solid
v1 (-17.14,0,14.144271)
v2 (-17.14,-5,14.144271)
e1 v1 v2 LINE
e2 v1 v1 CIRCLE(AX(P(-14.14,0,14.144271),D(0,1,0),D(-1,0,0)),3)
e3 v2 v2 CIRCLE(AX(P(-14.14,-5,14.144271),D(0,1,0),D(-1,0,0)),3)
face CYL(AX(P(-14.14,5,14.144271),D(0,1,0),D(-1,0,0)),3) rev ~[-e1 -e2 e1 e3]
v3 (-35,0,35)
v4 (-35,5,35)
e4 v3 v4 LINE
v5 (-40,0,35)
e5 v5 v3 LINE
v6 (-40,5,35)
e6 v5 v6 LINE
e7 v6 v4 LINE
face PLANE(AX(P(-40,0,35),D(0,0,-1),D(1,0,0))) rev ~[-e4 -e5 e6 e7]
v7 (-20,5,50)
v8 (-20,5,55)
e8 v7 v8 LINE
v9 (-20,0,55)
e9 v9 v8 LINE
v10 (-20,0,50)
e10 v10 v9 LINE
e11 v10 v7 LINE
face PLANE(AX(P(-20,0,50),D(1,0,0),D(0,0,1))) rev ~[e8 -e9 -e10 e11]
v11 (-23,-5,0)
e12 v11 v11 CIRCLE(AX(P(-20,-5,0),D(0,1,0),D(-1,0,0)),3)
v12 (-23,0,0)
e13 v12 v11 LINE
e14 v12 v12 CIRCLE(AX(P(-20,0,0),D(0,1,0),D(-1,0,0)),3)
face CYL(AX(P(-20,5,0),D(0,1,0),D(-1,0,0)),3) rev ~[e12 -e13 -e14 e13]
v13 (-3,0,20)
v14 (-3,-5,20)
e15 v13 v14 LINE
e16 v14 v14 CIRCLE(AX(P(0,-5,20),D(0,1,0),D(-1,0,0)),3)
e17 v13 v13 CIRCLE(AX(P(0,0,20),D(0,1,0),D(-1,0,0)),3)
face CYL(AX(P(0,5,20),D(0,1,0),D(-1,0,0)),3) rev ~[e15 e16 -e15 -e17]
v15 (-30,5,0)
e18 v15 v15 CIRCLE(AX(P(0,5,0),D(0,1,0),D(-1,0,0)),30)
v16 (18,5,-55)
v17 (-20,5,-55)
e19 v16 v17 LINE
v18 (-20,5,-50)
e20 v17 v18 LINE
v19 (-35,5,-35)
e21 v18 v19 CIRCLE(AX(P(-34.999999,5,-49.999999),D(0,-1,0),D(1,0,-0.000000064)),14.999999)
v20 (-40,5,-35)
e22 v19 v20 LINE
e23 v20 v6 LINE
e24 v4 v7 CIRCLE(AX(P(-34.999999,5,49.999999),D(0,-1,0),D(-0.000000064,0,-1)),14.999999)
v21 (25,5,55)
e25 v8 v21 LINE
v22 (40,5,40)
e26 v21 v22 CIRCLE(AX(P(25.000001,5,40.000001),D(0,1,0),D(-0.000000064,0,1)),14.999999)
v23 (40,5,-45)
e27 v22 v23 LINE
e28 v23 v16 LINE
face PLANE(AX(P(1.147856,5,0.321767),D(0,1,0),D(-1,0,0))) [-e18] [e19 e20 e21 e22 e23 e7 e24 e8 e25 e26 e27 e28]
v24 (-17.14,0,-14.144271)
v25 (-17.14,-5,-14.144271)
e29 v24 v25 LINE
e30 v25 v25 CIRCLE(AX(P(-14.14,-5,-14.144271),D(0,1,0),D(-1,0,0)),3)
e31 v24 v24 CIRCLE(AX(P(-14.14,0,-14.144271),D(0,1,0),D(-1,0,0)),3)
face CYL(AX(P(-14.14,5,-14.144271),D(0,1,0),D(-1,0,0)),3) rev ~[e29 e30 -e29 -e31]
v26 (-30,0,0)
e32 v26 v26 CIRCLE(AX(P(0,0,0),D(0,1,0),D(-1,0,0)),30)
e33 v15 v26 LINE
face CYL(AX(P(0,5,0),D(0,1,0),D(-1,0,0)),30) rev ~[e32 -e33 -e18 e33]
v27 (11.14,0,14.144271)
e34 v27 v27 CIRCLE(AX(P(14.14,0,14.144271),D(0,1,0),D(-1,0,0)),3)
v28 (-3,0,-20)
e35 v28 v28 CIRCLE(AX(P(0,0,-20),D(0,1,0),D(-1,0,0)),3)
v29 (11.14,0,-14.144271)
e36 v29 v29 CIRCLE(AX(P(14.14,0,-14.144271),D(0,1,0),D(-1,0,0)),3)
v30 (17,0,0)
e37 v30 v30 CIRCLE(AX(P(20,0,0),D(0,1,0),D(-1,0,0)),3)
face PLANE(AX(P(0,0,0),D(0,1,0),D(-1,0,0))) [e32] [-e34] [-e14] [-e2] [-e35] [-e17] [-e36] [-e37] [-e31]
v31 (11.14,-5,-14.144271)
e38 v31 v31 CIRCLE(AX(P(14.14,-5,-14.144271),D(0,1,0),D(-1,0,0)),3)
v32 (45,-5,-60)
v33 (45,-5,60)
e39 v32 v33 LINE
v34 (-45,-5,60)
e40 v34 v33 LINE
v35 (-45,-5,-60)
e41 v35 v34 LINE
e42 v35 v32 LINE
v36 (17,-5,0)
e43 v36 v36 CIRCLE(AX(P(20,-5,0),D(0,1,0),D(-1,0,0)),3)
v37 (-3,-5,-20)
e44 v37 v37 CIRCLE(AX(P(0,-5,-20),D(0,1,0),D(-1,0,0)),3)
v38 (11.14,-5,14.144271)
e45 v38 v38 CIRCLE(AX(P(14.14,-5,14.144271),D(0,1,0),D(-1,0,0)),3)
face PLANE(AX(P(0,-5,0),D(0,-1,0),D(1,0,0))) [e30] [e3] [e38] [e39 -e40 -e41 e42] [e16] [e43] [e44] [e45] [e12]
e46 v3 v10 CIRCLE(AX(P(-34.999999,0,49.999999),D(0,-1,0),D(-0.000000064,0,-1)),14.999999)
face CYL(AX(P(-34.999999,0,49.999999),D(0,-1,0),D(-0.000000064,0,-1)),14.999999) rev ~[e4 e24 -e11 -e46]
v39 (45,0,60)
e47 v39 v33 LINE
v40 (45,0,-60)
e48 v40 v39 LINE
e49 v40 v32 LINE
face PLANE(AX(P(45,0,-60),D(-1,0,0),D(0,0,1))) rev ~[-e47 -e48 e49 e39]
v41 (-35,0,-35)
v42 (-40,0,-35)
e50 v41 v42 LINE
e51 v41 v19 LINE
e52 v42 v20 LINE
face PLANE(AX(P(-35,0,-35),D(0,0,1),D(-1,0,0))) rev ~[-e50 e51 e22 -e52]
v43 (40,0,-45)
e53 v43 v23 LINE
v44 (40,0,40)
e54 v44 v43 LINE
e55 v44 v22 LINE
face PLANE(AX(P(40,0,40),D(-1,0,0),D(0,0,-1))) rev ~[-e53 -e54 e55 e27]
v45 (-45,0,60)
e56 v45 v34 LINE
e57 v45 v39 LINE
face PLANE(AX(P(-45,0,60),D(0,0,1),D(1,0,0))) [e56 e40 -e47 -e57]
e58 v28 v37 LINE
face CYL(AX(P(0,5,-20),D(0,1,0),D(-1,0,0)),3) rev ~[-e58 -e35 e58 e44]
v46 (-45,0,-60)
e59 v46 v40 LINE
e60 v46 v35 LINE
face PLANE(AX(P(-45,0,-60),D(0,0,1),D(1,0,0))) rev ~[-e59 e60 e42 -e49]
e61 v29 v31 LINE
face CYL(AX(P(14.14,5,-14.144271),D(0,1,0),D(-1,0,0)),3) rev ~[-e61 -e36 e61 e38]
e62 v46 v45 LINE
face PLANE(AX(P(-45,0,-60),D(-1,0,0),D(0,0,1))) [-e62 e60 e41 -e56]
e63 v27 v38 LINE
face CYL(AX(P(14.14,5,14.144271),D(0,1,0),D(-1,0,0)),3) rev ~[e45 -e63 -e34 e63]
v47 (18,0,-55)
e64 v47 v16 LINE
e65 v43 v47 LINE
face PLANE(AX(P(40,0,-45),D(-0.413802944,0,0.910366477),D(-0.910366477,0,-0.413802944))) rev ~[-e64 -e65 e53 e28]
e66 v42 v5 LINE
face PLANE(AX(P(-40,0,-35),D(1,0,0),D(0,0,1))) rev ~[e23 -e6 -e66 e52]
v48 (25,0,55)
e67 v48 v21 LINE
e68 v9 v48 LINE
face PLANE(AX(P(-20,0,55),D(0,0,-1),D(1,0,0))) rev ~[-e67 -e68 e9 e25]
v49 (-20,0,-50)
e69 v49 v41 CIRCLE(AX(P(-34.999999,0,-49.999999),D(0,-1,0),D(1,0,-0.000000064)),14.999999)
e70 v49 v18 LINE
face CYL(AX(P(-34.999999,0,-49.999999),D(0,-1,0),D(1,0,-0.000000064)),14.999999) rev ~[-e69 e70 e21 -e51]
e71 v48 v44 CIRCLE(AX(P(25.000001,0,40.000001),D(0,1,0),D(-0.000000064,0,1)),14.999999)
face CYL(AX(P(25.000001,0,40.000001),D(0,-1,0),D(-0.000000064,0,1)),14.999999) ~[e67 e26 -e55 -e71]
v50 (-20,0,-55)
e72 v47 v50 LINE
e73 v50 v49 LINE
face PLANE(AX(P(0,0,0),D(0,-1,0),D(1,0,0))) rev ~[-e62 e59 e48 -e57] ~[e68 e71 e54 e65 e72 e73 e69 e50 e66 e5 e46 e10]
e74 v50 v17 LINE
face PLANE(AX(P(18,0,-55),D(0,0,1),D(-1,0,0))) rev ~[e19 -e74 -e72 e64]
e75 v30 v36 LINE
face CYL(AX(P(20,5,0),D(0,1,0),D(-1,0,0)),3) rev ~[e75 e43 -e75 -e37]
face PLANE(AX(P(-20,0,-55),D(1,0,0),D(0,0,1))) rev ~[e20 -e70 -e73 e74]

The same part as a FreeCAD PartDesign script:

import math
import FreeCAD as App
import Part
import Sketcher

V = App.Vector


def add_polygon(sketch, points):
    """Adds a closed chain of lines whose ends are joined by coincident constraints."""
    first, n = sketch.GeometryCount, len(points)
    for a, b in zip(points, points[1:] + points[:1]):
        sketch.addGeometry(Part.LineSegment(App.Vector(*a, 0), App.Vector(*b, 0)), False)
    for i in range(n):
        sketch.addConstraint(Sketcher.Constraint("Coincident", first + i, 2, first + (i + 1) % n, 1))

doc = App.newDocument("Part")
params = doc.addObject("Spreadsheet::Sheet", "Params")
for row, (alias, value) in enumerate([
    ("sketch1_width", "90 mm"),
    ("sketch1_height", "120 mm"),
    ("pad1_length", "5 mm"),
    ("sketch2_radius", "14.999999 mm"),
    ("sketch2_width", "38 mm"),
    ("sketch2_width2", "5 mm"),
    ("sketch2_width3", "45 mm"),
    ("sketch2_height", "70 mm"),
    ("pad2_length", "5 mm"),
    ("sketch3_diameter", "60 mm"),
    ("sketch3_diameter2", "6 mm"),
    ("pocket1_length", "5 mm"),
    ("sketch4_diameter", "6 mm"),
    ("pocket2_length", "25 mm"),
], start=1):
    params.set(f"A{row}", alias)
    params.set(f"B{row}", "=" + value)
    params.setAlias(f"B{row}", alias)

body = doc.addObject("PartDesign::Body", "Body")

# Sketch on XZ plane
sketch1 = doc.addObject("Sketcher::SketchObject", "Sketch")
body.addObject(sketch1)
sketch1.AttachmentSupport = (doc.XZ_Plane, [""])
sketch1.MapMode = "FlatFace"
add_polygon(sketch1, [(-45, 60), (-45, -60), (45, -60), (45, 60)])  # lines 0-3
sketch1.addConstraint([
    Sketcher.Constraint("Vertical", 0),
    Sketcher.Constraint("Horizontal", 1),
    Sketcher.Constraint("Vertical", 2),
    Sketcher.Constraint("Horizontal", 3),
    Sketcher.Constraint("Symmetric", 0, 2, 2, 2, -1, 1),
    Sketcher.Constraint("DistanceX", 1, 1, 1, 2, 90.0),
    Sketcher.Constraint("DistanceY", 0, 2, 0, 1, 120.0),
])
sketch1.setExpression("Constraints[9]", "Params.sketch1_width")
sketch1.setExpression("Constraints[10]", "Params.sketch1_height")
pad1 = doc.addObject("PartDesign::Pad", "Pad")
body.addObject(pad1)
pad1.Profile = sketch1
pad1.setExpression("Length", "Params.pad1_length")

# Sketch on XZ plane
sketch2 = doc.addObject("Sketcher::SketchObject", "Sketch001")
body.addObject(sketch2)
sketch2.AttachmentSupport = (doc.XZ_Plane, [""])
sketch2.MapMode = "FlatFace"
sketch2.addGeometry([
    Part.LineSegment(V(40, -45, 0), V(18, -55, 0)),  # 0
    Part.LineSegment(V(18, -55, 0), V(-20, -55, 0)),  # 1
    Part.LineSegment(V(-20, -55, 0), V(-20, -50, 0)),  # 2
    Part.ArcOfCircle(Part.Circle(V(-35, -50, 0), V(0, 0, 1), 15), math.radians(0), math.radians(90)),  # 3
    Part.LineSegment(V(-35, -35, 0), V(-40, -35, 0)),  # 4
    Part.LineSegment(V(-40, -35, 0), V(-40, 35, 0)),  # 5
    Part.LineSegment(V(-40, 35, 0), V(-35, 35, 0)),  # 6
    Part.ArcOfCircle(Part.Circle(V(-35, 50, 0), V(0, 0, 1), 15), math.radians(-90), math.radians(0)),  # 7
    Part.LineSegment(V(-20, 50, 0), V(-20, 55, 0)),  # 8
    Part.LineSegment(V(-20, 55, 0), V(25, 55, 0)),  # 9
    Part.ArcOfCircle(Part.Circle(V(25, 40, 0), V(0, 0, 1), 15), math.radians(0), math.radians(90)),  # 10
    Part.LineSegment(V(40, 40, 0), V(40, -45, 0)),  # 11
], False)
sketch2.addConstraint([
    Sketcher.Constraint("Coincident", 0, 2, 1, 1),
    Sketcher.Constraint("Coincident", 1, 2, 2, 1),
    Sketcher.Constraint("Tangent", 2, 2, 3, 1),
    Sketcher.Constraint("Tangent", 3, 2, 4, 1),
    Sketcher.Constraint("Coincident", 4, 2, 5, 1),
    Sketcher.Constraint("Coincident", 5, 2, 6, 1),
    Sketcher.Constraint("Tangent", 6, 2, 7, 1),
    Sketcher.Constraint("Tangent", 7, 2, 8, 1),
    Sketcher.Constraint("Coincident", 8, 2, 9, 1),
    Sketcher.Constraint("Tangent", 9, 2, 10, 2),
    Sketcher.Constraint("Tangent", 10, 1, 11, 1),
    Sketcher.Constraint("Coincident", 11, 2, 0, 1),
    Sketcher.Constraint("Horizontal", 1),
    Sketcher.Constraint("Vertical", 2),
    Sketcher.Constraint("Horizontal", 4),
    Sketcher.Constraint("Vertical", 5),
    Sketcher.Constraint("Horizontal", 6),
    Sketcher.Constraint("Vertical", 8),
    Sketcher.Constraint("Horizontal", 9),
    Sketcher.Constraint("Vertical", 11),
    Sketcher.Constraint("Equal", 3, 7),
    Sketcher.Constraint("Equal", 7, 10),
    Sketcher.Constraint("Symmetric", 3, 3, 7, 3, -1),
    Sketcher.Constraint("Equal", 6, 2),
    Sketcher.Constraint("Equal", 2, 8),
    Sketcher.Constraint("Radius", 3, 14.999999),
    Sketcher.Constraint("DistanceX", 1, 2, 1, 1, 38.0),
    Sketcher.Constraint("DistanceX", 4, 2, 4, 1, 5.0),
    Sketcher.Constraint("DistanceX", 9, 1, 9, 2, 45.0),
    Sketcher.Constraint("DistanceY", 5, 1, 5, 2, 70.0),
    Sketcher.Constraint("DistanceY", 11, 2, 11, 1, 85.0),
    Sketcher.Constraint("DistanceX", 3, 3, -1, 1, 34.999999),
])
sketch2.setExpression("Constraints[25]", "Params.sketch2_radius")
sketch2.setExpression("Constraints[26]", "Params.sketch2_width")
sketch2.setExpression("Constraints[27]", "Params.sketch2_width2")
sketch2.setExpression("Constraints[28]", "Params.sketch2_width3")
sketch2.setExpression("Constraints[29]", "Params.sketch2_height")
pad2 = doc.addObject("PartDesign::Pad", "Pad001")
body.addObject(pad2)
pad2.Profile = sketch2
pad2.setExpression("Length", "Params.pad2_length")
pad2.Reversed = True

# Sketch on XZ plane
sketch3 = doc.addObject("Sketcher::SketchObject", "Sketch002")
body.addObject(sketch3)
sketch3.AttachmentSupport = (doc.XZ_Plane, [""])
sketch3.MapMode = "FlatFace"
sketch3.AttachmentOffset = App.Placement(V(0, 0, -5), App.Rotation())
sketch3.addGeometry([
    Part.Circle(V(0, 0, 0), V(0, 0, 1), 30),  # 0
    Part.Circle(V(14.1, -14.1, 0), V(0, 0, 1), 3),  # 1
    Part.Circle(V(0, -20, 0), V(0, 0, 1), 3),  # 2
    Part.Circle(V(-14.1, -14.1, 0), V(0, 0, 1), 3),  # 3
    Part.Circle(V(20, 0, 0), V(0, 0, 1), 3),  # 4
    Part.Circle(V(14.1, 14.1, 0), V(0, 0, 1), 3),  # 5
    Part.Circle(V(-20, 0, 0), V(0, 0, 1), 3),  # 6
    Part.Circle(V(0, 20, 0), V(0, 0, 1), 3),  # 7
    Part.Circle(V(-14.1, 14.1, 0), V(0, 0, 1), 3),  # 8
], False)
sketch3.addConstraint([
    Sketcher.Constraint("Coincident", 0, 3, -1, 1),
    Sketcher.Constraint("Equal", 1, 2),
    Sketcher.Constraint("Equal", 2, 3),
    Sketcher.Constraint("Equal", 3, 4),
    Sketcher.Constraint("Equal", 4, 5),
    Sketcher.Constraint("Equal", 5, 6),
    Sketcher.Constraint("Equal", 6, 7),
    Sketcher.Constraint("Equal", 7, 8),
    Sketcher.Constraint("Symmetric", 3, 3, 5, 3, -1, 1),
    Sketcher.Constraint("Symmetric", 4, 3, 6, 3, -1, 1),
    Sketcher.Constraint("Symmetric", 2, 3, 7, 3, -1, 1),
    Sketcher.Constraint("Symmetric", 1, 3, 8, 3, -1, 1),
    Sketcher.Constraint("Symmetric", 1, 3, 3, 3, -2),
    Sketcher.Constraint("PointOnObject", 2, 3, -2),
    Sketcher.Constraint("PointOnObject", 4, 3, -1),
    Sketcher.Constraint("Diameter", 0, 60.0),
    Sketcher.Constraint("Diameter", 1, 6.0),
    Sketcher.Constraint("DistanceY", 2, 3, -1, 1, 20.0),
    Sketcher.Constraint("DistanceX", -1, 1, 4, 3, 20.0),
    Sketcher.Constraint("DistanceX", -1, 1, 1, 3, 14.14),
    Sketcher.Constraint("DistanceY", 1, 3, -1, 1, 14.144271),
])
sketch3.setExpression("Constraints[15]", "Params.sketch3_diameter")
sketch3.setExpression("Constraints[16]", "Params.sketch3_diameter2")
pocket1 = doc.addObject("PartDesign::Pocket", "Pocket")
body.addObject(pocket1)
pocket1.Profile = sketch3
pocket1.setExpression("Length", "Params.pocket1_length")
pocket1.Reversed = True

# Sketch on XZ plane
sketch4 = doc.addObject("Sketcher::SketchObject", "Sketch003")
body.addObject(sketch4)
sketch4.AttachmentSupport = (doc.XZ_Plane, [""])
sketch4.MapMode = "FlatFace"
sketch4.AttachmentOffset = App.Placement(V(0, 0, -5), App.Rotation())
sketch4.addGeometry([
    Part.Circle(V(14.1, -14.1, 0), V(0, 0, 1), 3),  # 0
    Part.Circle(V(20, 0, 0), V(0, 0, 1), 3),  # 1
    Part.Circle(V(14.1, 14.1, 0), V(0, 0, 1), 3),  # 2
    Part.Circle(V(0, 20, 0), V(0, 0, 1), 3),  # 3
    Part.Circle(V(-14.1, 14.1, 0), V(0, 0, 1), 3),  # 4
    Part.Circle(V(-20, 0, 0), V(0, 0, 1), 3),  # 5
    Part.Circle(V(-14.1, -14.1, 0), V(0, 0, 1), 3),  # 6
    Part.Circle(V(0, -20, 0), V(0, 0, 1), 3),  # 7
], False)
sketch4.addConstraint([
    Sketcher.Constraint("Equal", 0, 1),
    Sketcher.Constraint("Equal", 1, 2),
    Sketcher.Constraint("Equal", 2, 3),
    Sketcher.Constraint("Equal", 3, 4),
    Sketcher.Constraint("Equal", 4, 5),
    Sketcher.Constraint("Equal", 5, 6),
    Sketcher.Constraint("Equal", 6, 7),
    Sketcher.Constraint("Symmetric", 0, 3, 4, 3, -1, 1),
    Sketcher.Constraint("Symmetric", 1, 3, 5, 3, -1, 1),
    Sketcher.Constraint("Symmetric", 2, 3, 6, 3, -1, 1),
    Sketcher.Constraint("Symmetric", 3, 3, 7, 3, -1, 1),
    Sketcher.Constraint("Symmetric", 2, 3, 4, 3, -2),
    Sketcher.Constraint("PointOnObject", 1, 3, -1),
    Sketcher.Constraint("PointOnObject", 3, 3, -2),
    Sketcher.Constraint("Diameter", 0, 6.0),
    Sketcher.Constraint("DistanceX", -1, 1, 1, 3, 20.0),
    Sketcher.Constraint("DistanceY", -1, 1, 3, 3, 20.0),
    Sketcher.Constraint("DistanceX", -1, 1, 0, 3, 14.14),
    Sketcher.Constraint("DistanceY", 0, 3, -1, 1, 14.144271),
])
sketch4.setExpression("Constraints[14]", "Params.sketch4_diameter")
pocket2 = doc.addObject("PartDesign::Pocket", "Pocket001")
body.addObject(pocket2)
pocket2.Profile = sketch4
pocket2.setExpression("Length", "Params.pocket2_length")
pocket2.Reversed = True

doc.recompute()
